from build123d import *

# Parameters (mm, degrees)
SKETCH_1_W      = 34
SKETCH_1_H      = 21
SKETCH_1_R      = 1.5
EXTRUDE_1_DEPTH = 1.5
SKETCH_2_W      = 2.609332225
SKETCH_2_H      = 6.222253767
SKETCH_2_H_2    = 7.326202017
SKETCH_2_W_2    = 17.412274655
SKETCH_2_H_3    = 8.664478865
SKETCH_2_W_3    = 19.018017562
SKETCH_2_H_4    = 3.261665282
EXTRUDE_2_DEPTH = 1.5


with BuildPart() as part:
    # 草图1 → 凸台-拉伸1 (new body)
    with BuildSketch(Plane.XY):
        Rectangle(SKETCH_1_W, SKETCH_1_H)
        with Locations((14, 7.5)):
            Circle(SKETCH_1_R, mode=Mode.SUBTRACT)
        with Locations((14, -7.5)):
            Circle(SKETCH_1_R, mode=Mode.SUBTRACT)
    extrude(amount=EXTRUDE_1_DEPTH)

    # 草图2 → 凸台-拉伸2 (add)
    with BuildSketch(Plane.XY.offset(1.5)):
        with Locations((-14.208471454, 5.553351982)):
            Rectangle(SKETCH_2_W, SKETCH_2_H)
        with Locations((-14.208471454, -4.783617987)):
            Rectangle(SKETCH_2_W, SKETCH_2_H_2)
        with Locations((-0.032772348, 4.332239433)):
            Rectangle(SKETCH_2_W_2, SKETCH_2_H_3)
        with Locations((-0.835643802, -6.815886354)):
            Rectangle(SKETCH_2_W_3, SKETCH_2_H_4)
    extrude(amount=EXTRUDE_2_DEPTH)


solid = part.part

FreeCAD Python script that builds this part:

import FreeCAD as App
import Part
import Sketcher
from FreeCAD import Vector
Q = App.Units.Quantity


def add_polygon(sketch, points):
    """Adds a closed chain of lines whose ends are joined by coincident constraints."""
    first, n = sketch.GeometryCount, len(points)
    for a, b in zip(points, points[1:] + points[:1]):
        sketch.addGeometry(Part.LineSegment(App.Vector(*a, 0), App.Vector(*b, 0)), False)
    for i in range(n):
        sketch.addConstraint(Sketcher.Constraint("Coincident", first + i, 2, first + (i + 1) % n, 1))

doc = App.newDocument("Part")
body = doc.addObject("PartDesign::Body", "Body")

# Sketch on XY plane
sketch1 = body.newObject("Sketcher::SketchObject", "Sketch")
sketch1.AttachmentSupport = (doc.getObject("XY_Plane"), [""])
sketch1.MapMode = "FlatFace"
add_polygon(sketch1, [(-17, 10.5), (-17, -10.5), (17, -10.5), (17, 10.5)])  # lines 0-3
sketch1.addGeometry(Part.Circle(Vector(14, -7.5, 0), Vector(0, 0, 1), 1.5), False)  # 4
sketch1.addGeometry(Part.Circle(Vector(14, 7.5, 0), Vector(0, 0, 1), 1.5), False)  # 5
sketch1.addConstraint([
    Sketcher.Constraint("Vertical", 0),
    Sketcher.Constraint("Horizontal", 1),
    Sketcher.Constraint("Vertical", 2),
    Sketcher.Constraint("Horizontal", 3),
    Sketcher.Constraint("Equal", 4, 5),
    Sketcher.Constraint("Symmetric", 0, 2, 2, 2, -1, 1),
    Sketcher.Constraint("Symmetric", 4, 3, 5, 3, -1),
    Sketcher.Constraint("Diameter", 4, Q("3 mm")),
    Sketcher.Constraint("DistanceX", 1, 1, 1, 2, Q("34 mm")),
    Sketcher.Constraint("DistanceY", 0, 2, 0, 1, Q("21 mm")),
    Sketcher.Constraint("DistanceX", -1, 1, 4, 3, Q("14 mm")),
    Sketcher.Constraint("DistanceY", 4, 3, 5, 3, Q("15 mm")),
])
pad1 = body.newObject("PartDesign::Pad", "Pad")
pad1.Profile = sketch1
pad1.Length = 1.5

# Sketch on XY plane
sketch2 = body.newObject("Sketcher::SketchObject", "Sketch001")
sketch2.AttachmentSupport = (doc.getObject("XY_Plane"), [""])
sketch2.MapMode = "FlatFace"
sketch2.AttachmentOffset = App.Placement(Vector(0, 0, 1.5), App.Rotation())
add_polygon(sketch2, [(-15.5, 8.7), (-15.5, 2.4), (-12.9, 2.4), (-12.9, 8.7)])  # lines 0-3
add_polygon(sketch2, [(-15.5, -1.1), (-15.5, -8.4), (-12.9, -8.4), (-12.9, -1.1)])  # lines 4-7
add_polygon(sketch2, [(-8.7, 8.7), (-8.7, 0), (8.7, 0), (8.7, 8.7)])  # lines 8-11
add_polygon(sketch2, [(-10.3, -5.2), (-10.3, -8.4), (8.7, -8.4), (8.7, -5.2)])  # lines 12-15
sketch2.addConstraint([
    Sketcher.Constraint("Vertical", 0),
    Sketcher.Constraint("Horizontal", 1),
    Sketcher.Constraint("Vertical", 2),
    Sketcher.Constraint("Horizontal", 3),
    Sketcher.Constraint("Vertical", 4),
    Sketcher.Constraint("Horizontal", 5),
    Sketcher.Constraint("Vertical", 6),
    Sketcher.Constraint("Horizontal", 7),
    Sketcher.Constraint("Vertical", 8),
    Sketcher.Constraint("Horizontal", 9),
    Sketcher.Constraint("Vertical", 10),
    Sketcher.Constraint("Horizontal", 11),
    Sketcher.Constraint("Vertical", 12),
    Sketcher.Constraint("Horizontal", 13),
    Sketcher.Constraint("Vertical", 14),
    Sketcher.Constraint("Horizontal", 15),
    Sketcher.Constraint("PointOnObject", 8, 2, -1),
    Sketcher.Constraint("Horizontal", 3, 2, 10, 2),
    Sketcher.Constraint("Horizontal", 5, 2, 12, 2),
    Sketcher.Constraint("Vertical", 3, 2, 4, 2),
    Sketcher.Constraint("Vertical", 2, 2, 5, 2),
    Sketcher.Constraint("Vertical", 10, 2, 13, 2),
    Sketcher.Constraint("DistanceY", 8, 2, 8, 1, Q("8.664479 mm")),
    Sketcher.Constraint("DistanceX", 1, 1, 1, 2, Q("2.609332 mm")),
    Sketcher.Constraint("DistanceX", 9, 1, 9, 2, Q("17.412275 mm")),
    Sketcher.Constraint("DistanceX", 13, 1, 13, 2, Q("19.018018 mm")),
    Sketcher.Constraint("DistanceY", 0, 2, 0, 1, Q("6.222254 mm")),
    Sketcher.Constraint("DistanceY", 4, 2, 4, 1, Q("7.326202 mm")),
    Sketcher.Constraint("DistanceY", 12, 2, 12, 1, Q("3.261665 mm")),
    Sketcher.Constraint("DistanceY", 4, 2, -1, 1, Q("8.446719 mm")),
    Sketcher.Constraint("DistanceX", 8, 2, -1, 1, Q("8.73891 mm")),
    Sketcher.Constraint("DistanceX", 6, 2, 9, 2, Q("21.57717 mm")),
])
pad2 = body.newObject("PartDesign::Pad", "Pad001")
pad2.Profile = sketch2
pad2.Length = 1.5

doc.recompute()
